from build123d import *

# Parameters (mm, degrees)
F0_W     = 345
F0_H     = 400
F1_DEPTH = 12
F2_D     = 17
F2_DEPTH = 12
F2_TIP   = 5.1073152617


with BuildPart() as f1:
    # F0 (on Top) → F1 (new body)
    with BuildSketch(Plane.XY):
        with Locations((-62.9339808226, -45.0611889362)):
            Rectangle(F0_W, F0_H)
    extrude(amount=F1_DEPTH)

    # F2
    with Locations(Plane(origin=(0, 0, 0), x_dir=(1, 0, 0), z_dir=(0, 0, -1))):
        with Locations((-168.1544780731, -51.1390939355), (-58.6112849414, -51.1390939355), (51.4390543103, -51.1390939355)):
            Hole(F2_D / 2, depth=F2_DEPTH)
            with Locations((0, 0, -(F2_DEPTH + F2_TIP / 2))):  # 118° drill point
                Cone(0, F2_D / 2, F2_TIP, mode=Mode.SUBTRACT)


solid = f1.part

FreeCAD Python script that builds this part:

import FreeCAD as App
import Part
import Sketcher
from FreeCAD import Vector

doc = App.newDocument("Part")
params = doc.addObject("Spreadsheet::Sheet", "Params")
for row, (alias, value) in enumerate([
    ("sketch1_width", "345 mm"),
    ("sketch1_height", "400 mm"),
    ("pad1_length", "12 mm"),
    ("sketch2_diameter", "17 mm"),
    ("hole_diameter", "17 mm"),
    ("hole_depth", "12 mm"),
], start=1):
    params.set(f"A{row}", alias)
    params.set(f"B{row}", "=" + value)
    params.setAlias(f"B{row}", alias)

body = doc.addObject("PartDesign::Body", "Body")

sketch1 = body.newObject("Sketcher::SketchObject", "Sketch")
sketch1.AttachmentSupport = (doc.getObject("XY_Plane"), [""])
sketch1.MapMode = "FlatFace"
sketch1.addGeometry([
    Part.LineSegment(Vector(-235.433981, 154.938811, 0), Vector(-235.433981, -245.061189, 0)),
    Part.LineSegment(Vector(-235.433981, -245.061189, 0), Vector(109.566019, -245.061189, 0)),
    Part.LineSegment(Vector(109.566019, -245.061189, 0), Vector(109.566019, 154.938811, 0)),
    Part.LineSegment(Vector(109.566019, 154.938811, 0), Vector(-235.433981, 154.938811, 0)),
], False)
sketch1.addConstraint([
    Sketcher.Constraint("Coincident", 0, 2, 1, 1),
    Sketcher.Constraint("Coincident", 1, 2, 2, 1),
    Sketcher.Constraint("Coincident", 2, 2, 3, 1),
    Sketcher.Constraint("Coincident", 3, 2, 0, 1),
    Sketcher.Constraint("Vertical", 0),
    Sketcher.Constraint("Horizontal", 1),
    Sketcher.Constraint("Vertical", 2),
    Sketcher.Constraint("Horizontal", 3),
    Sketcher.Constraint("DistanceX", 1, 1, 1, 2, 345.0),
    Sketcher.Constraint("DistanceY", 0, 2, 0, 1, 400.0),
    Sketcher.Constraint("DistanceX", 0, 2, -1, 1, 235.433981),
    Sketcher.Constraint("DistanceY", 0, 2, -1, 1, 245.061189),
])
sketch1.setExpression("Constraints[8]", "Params.sketch1_width")
sketch1.setExpression("Constraints[9]", "Params.sketch1_height")
pad1 = body.newObject("PartDesign::Pad", "Pad")
pad1.Profile = sketch1
pad1.setExpression("Length", "Params.pad1_length")

sketch2 = body.newObject("Sketcher::SketchObject", "Sketch001")
sketch2.AttachmentSupport = (doc.getObject("XY_Plane"), [""])
sketch2.MapMode = "FlatFace"
sketch2.addGeometry([
    Part.Circle(Vector(-168.154478, 51.139094, 0), Vector(0, 0, 1), 8.5),
    Part.Circle(Vector(-58.611285, 51.139094, 0), Vector(0, 0, 1), 8.5),
    Part.Circle(Vector(51.439054, 51.139094, 0), Vector(0, 0, 1), 8.5),
], False)
sketch2.addConstraint([
    Sketcher.Constraint("Equal", 0, 1),
    Sketcher.Constraint("Equal", 1, 2),
    Sketcher.Constraint("Horizontal", 0, 3, 1, 3),
    Sketcher.Constraint("Horizontal", 1, 3, 2, 3),
    Sketcher.Constraint("Diameter", 0, 17.0),
    Sketcher.Constraint("DistanceX", 0, 3, -1, 1, 168.154478),
    Sketcher.Constraint("DistanceX", 1, 3, 2, 3, 110.050339),
    Sketcher.Constraint("DistanceY", -1, 1, 0, 3, 51.139094),
    Sketcher.Constraint("DistanceX", 1, 3, -1, 1, 58.611285),
])
sketch2.setExpression("Constraints[4]", "Params.sketch2_diameter")
doc.recompute()
hole = body.newObject("PartDesign::Hole", "Hole")
hole.Profile = sketch2
hole.ThreadType = "None"
hole.setExpression("Diameter", "Params.hole_diameter")
hole.DepthType = "Dimension"
hole.setExpression("Depth", "Params.hole_depth")
hole.DrillPoint = "Angled"
hole.DrillPointAngle = 118
hole.Reversed = True

doc.recompute()
